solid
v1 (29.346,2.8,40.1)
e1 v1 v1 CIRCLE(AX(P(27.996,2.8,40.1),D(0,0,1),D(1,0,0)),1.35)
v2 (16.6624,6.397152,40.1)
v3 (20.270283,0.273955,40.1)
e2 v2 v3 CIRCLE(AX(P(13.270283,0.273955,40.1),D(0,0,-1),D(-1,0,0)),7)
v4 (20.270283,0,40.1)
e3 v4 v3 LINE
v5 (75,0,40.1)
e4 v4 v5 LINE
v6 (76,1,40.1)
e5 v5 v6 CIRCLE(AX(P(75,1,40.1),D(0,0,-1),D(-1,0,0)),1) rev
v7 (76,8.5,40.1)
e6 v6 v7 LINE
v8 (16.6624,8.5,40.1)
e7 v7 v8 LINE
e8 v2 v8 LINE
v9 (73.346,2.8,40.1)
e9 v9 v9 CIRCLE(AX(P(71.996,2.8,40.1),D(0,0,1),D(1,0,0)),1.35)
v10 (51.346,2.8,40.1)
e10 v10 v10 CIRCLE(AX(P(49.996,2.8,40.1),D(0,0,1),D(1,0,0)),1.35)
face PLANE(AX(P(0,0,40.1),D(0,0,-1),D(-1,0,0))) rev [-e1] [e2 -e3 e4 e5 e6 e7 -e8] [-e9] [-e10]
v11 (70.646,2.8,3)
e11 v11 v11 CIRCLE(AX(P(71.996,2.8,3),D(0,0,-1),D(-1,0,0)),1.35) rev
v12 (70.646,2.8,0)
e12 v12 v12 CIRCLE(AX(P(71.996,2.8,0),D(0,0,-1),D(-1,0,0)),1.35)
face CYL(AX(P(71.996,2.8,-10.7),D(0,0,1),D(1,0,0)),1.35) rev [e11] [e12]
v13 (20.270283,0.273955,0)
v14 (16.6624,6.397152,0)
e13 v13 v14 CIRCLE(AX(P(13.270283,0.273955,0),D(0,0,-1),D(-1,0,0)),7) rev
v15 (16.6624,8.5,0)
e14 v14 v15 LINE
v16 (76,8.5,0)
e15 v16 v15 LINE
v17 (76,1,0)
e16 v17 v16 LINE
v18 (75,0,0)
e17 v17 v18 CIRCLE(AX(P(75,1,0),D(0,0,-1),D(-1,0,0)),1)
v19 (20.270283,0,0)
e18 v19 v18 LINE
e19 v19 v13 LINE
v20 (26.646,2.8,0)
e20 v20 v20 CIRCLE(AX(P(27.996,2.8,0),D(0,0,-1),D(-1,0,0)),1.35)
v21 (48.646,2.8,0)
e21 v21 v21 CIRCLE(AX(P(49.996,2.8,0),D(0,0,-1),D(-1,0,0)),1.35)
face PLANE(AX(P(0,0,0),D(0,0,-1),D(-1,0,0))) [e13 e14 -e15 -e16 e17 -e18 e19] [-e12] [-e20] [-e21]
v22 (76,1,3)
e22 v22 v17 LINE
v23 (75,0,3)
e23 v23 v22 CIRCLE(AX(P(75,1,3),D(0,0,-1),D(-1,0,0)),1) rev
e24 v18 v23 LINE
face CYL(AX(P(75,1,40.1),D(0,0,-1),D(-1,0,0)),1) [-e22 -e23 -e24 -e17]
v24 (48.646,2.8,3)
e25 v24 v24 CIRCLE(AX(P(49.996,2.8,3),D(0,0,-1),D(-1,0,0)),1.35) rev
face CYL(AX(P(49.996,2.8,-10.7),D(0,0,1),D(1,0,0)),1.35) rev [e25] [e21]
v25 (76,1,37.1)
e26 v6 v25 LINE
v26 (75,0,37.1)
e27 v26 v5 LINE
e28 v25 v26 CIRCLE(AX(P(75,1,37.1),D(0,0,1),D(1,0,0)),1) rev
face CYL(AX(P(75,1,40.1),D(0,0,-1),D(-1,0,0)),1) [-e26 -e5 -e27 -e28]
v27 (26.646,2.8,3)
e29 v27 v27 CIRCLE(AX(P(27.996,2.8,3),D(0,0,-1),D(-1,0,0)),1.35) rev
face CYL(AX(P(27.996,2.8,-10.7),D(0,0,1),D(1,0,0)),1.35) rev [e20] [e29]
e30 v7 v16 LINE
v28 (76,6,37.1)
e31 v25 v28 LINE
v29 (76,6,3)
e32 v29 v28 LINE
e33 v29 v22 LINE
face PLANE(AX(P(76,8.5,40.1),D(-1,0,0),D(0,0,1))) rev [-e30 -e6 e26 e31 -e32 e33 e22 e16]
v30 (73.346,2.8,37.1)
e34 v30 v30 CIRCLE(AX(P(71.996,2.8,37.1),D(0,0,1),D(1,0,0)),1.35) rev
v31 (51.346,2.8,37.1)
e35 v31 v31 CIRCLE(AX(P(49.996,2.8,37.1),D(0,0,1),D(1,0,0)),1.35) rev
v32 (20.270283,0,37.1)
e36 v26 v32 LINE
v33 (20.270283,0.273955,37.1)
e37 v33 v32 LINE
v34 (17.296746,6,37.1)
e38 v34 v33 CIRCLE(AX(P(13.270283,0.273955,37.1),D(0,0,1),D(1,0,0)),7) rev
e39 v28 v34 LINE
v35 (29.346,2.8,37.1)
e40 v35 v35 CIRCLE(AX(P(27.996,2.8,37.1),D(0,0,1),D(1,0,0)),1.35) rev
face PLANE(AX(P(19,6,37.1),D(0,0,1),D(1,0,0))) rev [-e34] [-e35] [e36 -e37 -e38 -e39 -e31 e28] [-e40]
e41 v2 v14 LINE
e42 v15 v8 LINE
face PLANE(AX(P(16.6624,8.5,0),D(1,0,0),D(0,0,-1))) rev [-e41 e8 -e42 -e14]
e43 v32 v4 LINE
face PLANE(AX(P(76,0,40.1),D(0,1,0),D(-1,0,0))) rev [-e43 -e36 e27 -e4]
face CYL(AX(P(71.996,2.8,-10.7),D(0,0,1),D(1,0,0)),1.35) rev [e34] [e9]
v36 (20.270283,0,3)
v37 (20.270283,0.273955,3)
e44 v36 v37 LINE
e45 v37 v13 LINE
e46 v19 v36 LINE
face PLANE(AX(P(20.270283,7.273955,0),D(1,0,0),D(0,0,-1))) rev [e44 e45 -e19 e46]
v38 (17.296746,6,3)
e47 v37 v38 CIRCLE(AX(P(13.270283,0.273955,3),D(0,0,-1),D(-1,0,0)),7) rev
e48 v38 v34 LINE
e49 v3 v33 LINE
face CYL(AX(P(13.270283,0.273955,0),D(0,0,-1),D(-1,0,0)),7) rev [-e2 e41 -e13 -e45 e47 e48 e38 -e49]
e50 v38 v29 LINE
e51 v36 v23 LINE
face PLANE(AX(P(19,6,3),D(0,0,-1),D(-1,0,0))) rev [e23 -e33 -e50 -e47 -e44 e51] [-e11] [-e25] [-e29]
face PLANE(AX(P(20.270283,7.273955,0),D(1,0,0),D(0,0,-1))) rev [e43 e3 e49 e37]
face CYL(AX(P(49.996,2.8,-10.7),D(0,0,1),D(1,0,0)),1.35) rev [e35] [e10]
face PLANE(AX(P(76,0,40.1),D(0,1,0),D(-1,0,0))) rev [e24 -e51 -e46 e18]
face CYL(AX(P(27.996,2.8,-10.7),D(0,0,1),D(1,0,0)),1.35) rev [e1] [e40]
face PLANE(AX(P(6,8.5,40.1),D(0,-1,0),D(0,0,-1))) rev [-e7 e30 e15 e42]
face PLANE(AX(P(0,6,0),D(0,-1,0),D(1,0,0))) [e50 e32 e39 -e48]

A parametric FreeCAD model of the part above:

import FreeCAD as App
import Part
import Sketcher

V = App.Vector
Q = App.Units.Quantity


def edges_at(feature, points):
    """Names of the edges that pass closest to the given points."""
    edges = feature.Shape.Edges
    near = lambda p: min(range(len(edges)), key=lambda i: edges[i].distToShape(Part.Vertex(*p))[0])
    return sorted({f"Edge{near(p) + 1}" for p in points})

doc = App.newDocument("Part")
params = doc.addObject("Spreadsheet::Sheet", "Params")
for row, (alias, value) in enumerate([
    ("sketch1_width", "76 mm"),
    ("sketch1_width2", "70 mm"),
    ("sketch1_height", "8.5 mm"),
    ("pad1_length", "40.1 mm"),
    ("sketch2_diameter", "2.7 mm"),
    ("pocket1_length", "50.8 mm"),
    ("pocket2_length", "50.8 mm"),
    ("sketch4_height", "34.1 mm"),
    ("pocket3_length", "6 mm"),
    ("sketch5_width", "20 mm"),
    ("sketch5_height", "25 mm"),
    ("pad2_length", "2 mm"),
    ("fillet_radius", "1 mm"),
    ("sketch7_height", "8.5 mm"),
    ("pad3_length", "40 mm"),
    ("fillet2_radius", "7 mm"),
    ("sketch10_height", "10 mm"),
    ("sketch11_width", "6 mm"),
    ("sketch11_height", "34.1 mm"),
], start=1):
    params.set(f"A{row}", alias)
    params.set(f"B{row}", "=" + value)
    params.setAlias(f"B{row}", alias)

body = doc.addObject("PartDesign::Body", "Body")

sketch1 = doc.addObject("Sketcher::SketchObject", "Sketch")
body.addObject(sketch1)
sketch1.AttachmentSupport = (doc.XY_Plane, [""])
sketch1.MapMode = "FlatFace"
sketch1.addGeometry([
    Part.LineSegment(V(0, 52.578, 0), V(0, 0, 0)),
    Part.LineSegment(V(0, 0, 0), V(76, 0, 0)),
    Part.LineSegment(V(76, 0, 0), V(76, 8.5, 0)),
    Part.LineSegment(V(76, 8.5, 0), V(6, 8.5, 0)),
    Part.LineSegment(V(6, 8.5, 0), V(6, 52.578, 0)),
    Part.LineSegment(V(6, 52.578, 0), V(0, 52.578, 0)),
], False)
sketch1.addConstraint([
    Sketcher.Constraint("Coincident", 0, 2, 1, 1),
    Sketcher.Constraint("Coincident", 1, 2, 2, 1),
    Sketcher.Constraint("Coincident", 2, 2, 3, 1),
    Sketcher.Constraint("Coincident", 3, 2, 4, 1),
    Sketcher.Constraint("Coincident", 4, 2, 5, 1),
    Sketcher.Constraint("Coincident", 5, 2, 0, 1),
    Sketcher.Constraint("Vertical", 0),
    Sketcher.Constraint("Horizontal", 1),
    Sketcher.Constraint("Vertical", 2),
    Sketcher.Constraint("Horizontal", 3),
    Sketcher.Constraint("Vertical", 4),
    Sketcher.Constraint("Horizontal", 5),
    Sketcher.Constraint("Coincident", 0, 2, -1, 1),
    Sketcher.Constraint("DistanceX", 1, 1, 1, 2, Q("76 mm")),
    Sketcher.Constraint("DistanceX", 3, 2, 3, 1, Q("70 mm")),
    Sketcher.Constraint("DistanceY", 2, 1, 2, 2, Q("8.5 mm")),
    Sketcher.Constraint("DistanceY", 0, 2, 0, 1, Q("52.578 mm")),
])
sketch1.setExpression("Constraints[13]", "Params.sketch1_width")
sketch1.setExpression("Constraints[14]", "Params.sketch1_width2")
sketch1.setExpression("Constraints[15]", "Params.sketch1_height")
pad1 = doc.addObject("PartDesign::Pad", "Pad")
body.addObject(pad1)
pad1.Profile = sketch1
pad1.setExpression("Length", "Params.pad1_length")

sketch2 = doc.addObject("Sketcher::SketchObject", "Sketch001")
body.addObject(sketch2)
sketch2.AttachmentSupport = (doc.XY_Plane, [""])
sketch2.MapMode = "FlatFace"
sketch2.AttachmentOffset = App.Placement(V(0, 0, 40.1), App.Rotation())
sketch2.addGeometry([
    Part.Circle(V(27.996, 2.8, 0), V(0, 0, 1), 1.35),
    Part.Circle(V(49.996, 2.8, 0), V(0, 0, 1), 1.35),
    Part.Circle(V(71.996, 2.8, 0), V(0, 0, 1), 1.35),
], False)
sketch2.addConstraint([
    Sketcher.Constraint("Equal", 0, 1),
    Sketcher.Constraint("Equal", 1, 2),
    Sketcher.Constraint("Horizontal", 0, 3, 1, 3),
    Sketcher.Constraint("Horizontal", 1, 3, 2, 3),
    Sketcher.Constraint("Diameter", 0, Q("2.7 mm")),
    Sketcher.Constraint("DistanceX", 0, 3, 1, 3, Q("22 mm")),
    Sketcher.Constraint("DistanceX", 1, 3, 2, 3, Q("22 mm")),
    Sketcher.Constraint("DistanceY", -1, 1, 0, 3, Q("2.8 mm")),
    Sketcher.Constraint("DistanceX", -1, 1, 0, 3, Q("27.996 mm")),
])
sketch2.setExpression("Constraints[4]", "Params.sketch2_diameter")
pocket1 = doc.addObject("PartDesign::Pocket", "Pocket")
body.addObject(pocket1)
pocket1.Profile = sketch2
pocket1.setExpression("Length", "Params.pocket1_length")

sketch3 = doc.addObject("Sketcher::SketchObject", "Sketch002")
body.addObject(sketch3)
sketch3.AttachmentSupport = (doc.YZ_Plane, [""])
sketch3.MapMode = "FlatFace"
sketch3.addGeometry([
    Part.Circle(V(17.6, 27.88, 0), V(0, 0, 1), 1.016),
    Part.Circle(V(17.6, 11.88, 0), V(0, 0, 1), 1.016),
    Part.Circle(V(49.6, 27.88, 0), V(0, 0, 1), 1.016),
    Part.Circle(V(49.6, 11.88, 0), V(0, 0, 1), 1.016),
], False)
sketch3.addConstraint([
    Sketcher.Constraint("Equal", 0, 1),
    Sketcher.Constraint("Equal", 1, 2),
    Sketcher.Constraint("Equal", 2, 3),
    Sketcher.Constraint("Horizontal", 0, 3, 2, 3),
    Sketcher.Constraint("Horizontal", 1, 3, 3, 3),
    Sketcher.Constraint("Vertical", 0, 3, 1, 3),
    Sketcher.Constraint("Vertical", 2, 3, 3, 3),
    Sketcher.Constraint("Diameter", 0, Q("2.032 mm")),
    Sketcher.Constraint("DistanceY", 1, 3, 0, 3, Q("16 mm")),
    Sketcher.Constraint("DistanceX", 0, 3, 2, 3, Q("32 mm")),
    Sketcher.Constraint("DistanceX", -1, 1, 0, 3, Q("17.6 mm")),
    Sketcher.Constraint("DistanceY", -1, 1, 0, 3, Q("27.88 mm")),
])
pocket2 = doc.addObject("PartDesign::Pocket", "Pocket001")
body.addObject(pocket2)
pocket2.Profile = sketch3
pocket2.setExpression("Length", "Params.pocket2_length")
pocket2.Reversed = True

sketch4 = doc.addObject("Sketcher::SketchObject", "Sketch003")
body.addObject(sketch4)
sketch4.AttachmentSupport = (doc.XZ_Plane, [""])
sketch4.MapMode = "FlatFace"
sketch4.addGeometry([
    Part.LineSegment(V(19, 37.1, 0), V(19, 3, 0)),
    Part.LineSegment(V(19, 3, 0), V(81.086074, 3, 0)),
    Part.LineSegment(V(81.086074, 3, 0), V(81.086074, 37.1, 0)),
    Part.LineSegment(V(81.086074, 37.1, 0), V(19, 37.1, 0)),
], False)
sketch4.addConstraint([
    Sketcher.Constraint("Coincident", 0, 2, 1, 1),
    Sketcher.Constraint("Coincident", 1, 2, 2, 1),
    Sketcher.Constraint("Coincident", 2, 2, 3, 1),
    Sketcher.Constraint("Coincident", 3, 2, 0, 1),
    Sketcher.Constraint("Vertical", 0),
    Sketcher.Constraint("Horizontal", 1),
    Sketcher.Constraint("Vertical", 2),
    Sketcher.Constraint("Horizontal", 3),
    Sketcher.Constraint("DistanceY", 0, 2, 0, 1, Q("34.1 mm")),
    Sketcher.Constraint("DistanceX", -1, 1, 0, 2, Q("19 mm")),
    Sketcher.Constraint("DistanceY", -1, 1, 0, 2, Q("3 mm")),
    Sketcher.Constraint("DistanceX", 1, 1, 1, 2, Q("62.086074 mm")),
])
sketch4.setExpression("Constraints[8]", "Params.sketch4_height")
pocket3 = doc.addObject("PartDesign::Pocket", "Pocket002")
body.addObject(pocket3)
pocket3.Profile = sketch4
pocket3.setExpression("Length", "Params.pocket3_length")

sketch5 = doc.addObject("Sketcher::SketchObject", "Sketch004")
body.addObject(sketch5)
sketch5.AttachmentSupport = (doc.XY_Plane, [""])
sketch5.MapMode = "FlatFace"
sketch5.AttachmentOffset = App.Placement(V(0, 0, 40.1), App.Rotation())
sketch5.addGeometry([
    Part.LineSegment(V(6, 8.5, 0), V(26, 8.5, 0)),
    Part.LineSegment(V(26, 8.5, 0), V(6, 33.5, 0)),
    Part.LineSegment(V(6, 33.5, 0), V(6, 8.5, 0)),
], False)
sketch5.addConstraint([
    Sketcher.Constraint("Coincident", 0, 2, 1, 1),
    Sketcher.Constraint("Coincident", 1, 2, 2, 1),
    Sketcher.Constraint("Coincident", 2, 2, 0, 1),
    Sketcher.Constraint("Horizontal", 0),
    Sketcher.Constraint("Vertical", 2),
    Sketcher.Constraint("DistanceX", 0, 1, 0, 2, Q("20 mm")),
    Sketcher.Constraint("DistanceY", 2, 2, 2, 1, Q("25 mm")),
    Sketcher.Constraint("DistanceX", -1, 1, 0, 2, Q("26 mm")),
    Sketcher.Constraint("DistanceY", -1, 1, 0, 2, Q("8.5 mm")),
])
sketch5.setExpression("Constraints[5]", "Params.sketch5_width")
sketch5.setExpression("Constraints[6]", "Params.sketch5_height")
pad2 = doc.addObject("PartDesign::Pad", "Pad001")
body.addObject(pad2)
pad2.Profile = sketch5
pad2.setExpression("Length", "Params.pad2_length")
pad2.Reversed = True
doc.recompute()

datumplane = doc.addObject("PartDesign::Plane", "DatumPlane")
body.addObject(datumplane)
datumplane.AttachmentSupport = (doc.XY_Plane, [""])
datumplane.MapMode = "FlatFace"
datumplane.AttachmentOffset = App.Placement(V(0, 0, 20.05), App.Rotation())
mirrored = doc.addObject("PartDesign::Mirrored", "Mirrored")
body.addObject(mirrored)
mirrored.Originals = [pad2]
mirrored.MirrorPlane = (datumplane, [""])
body.Tip = mirrored
doc.recompute()

fillet = doc.addObject("PartDesign::Fillet", "Fillet")
body.addObject(fillet)
fillet.Base = (mirrored, edges_at(mirrored, [
    (0, 0, 20.05),
    (76, 0, 38.6),
    (3, 52.578, 40.1),
    (76, 0, 1.5),
    (3, 52.578, 0),
]))
fillet.setExpression("Radius", "Params.fillet_radius")

sketch6 = doc.addObject("Sketcher::SketchObject", "Sketch005")
body.addObject(sketch6)
sketch6.AttachmentSupport = (doc.XY_Plane, [""])
sketch6.MapMode = "FlatFace"
sketch6.AttachmentOffset = App.Placement(V(0, 0, 40.1), App.Rotation())
sketch6.addGeometry([
    Part.LineSegment(V(0, 70.892445, 0), V(0, 8.5, 0)),
    Part.LineSegment(V(0, 8.5, 0), V(87.972052, 8.5, 0)),
    Part.LineSegment(V(87.972052, 8.5, 0), V(87.972052, 70.892445, 0)),
    Part.LineSegment(V(87.972052, 70.892445, 0), V(0, 70.892445, 0)),
], False)
sketch6.addConstraint([
    Sketcher.Constraint("Coincident", 0, 2, 1, 1),
    Sketcher.Constraint("Coincident", 1, 2, 2, 1),
    Sketcher.Constraint("Coincident", 2, 2, 3, 1),
    Sketcher.Constraint("Coincident", 3, 2, 0, 1),
    Sketcher.Constraint("Vertical", 0),
    Sketcher.Constraint("Horizontal", 1),
    Sketcher.Constraint("Vertical", 2),
    Sketcher.Constraint("Horizontal", 3),
    Sketcher.Constraint("PointOnObject", 0, 2, -2),
    Sketcher.Constraint("DistanceY", -1, 1, 0, 2, Q("8.5 mm")),
    Sketcher.Constraint("DistanceX", 1, 1, 1, 2, Q("87.972052 mm")),
    Sketcher.Constraint("DistanceY", 0, 2, 0, 1, Q("62.392445 mm")),
])
pocket4 = doc.addObject("PartDesign::Pocket", "Pocket003")
body.addObject(pocket4)
pocket4.Profile = sketch6
pocket4.Type = "ThroughAll"

sketch7 = doc.addObject("Sketcher::SketchObject", "Sketch006")
body.addObject(sketch7)
sketch7.AttachmentSupport = (doc.XY_Plane, [""])
sketch7.MapMode = "FlatFace"
sketch7.AttachmentOffset = App.Placement(V(0, 0, 40.1), App.Rotation())
sketch7.addGeometry([
    Part.LineSegment(V(0, 8.5, 0), V(0, 0, 0)),
    Part.LineSegment(V(0, 0, 0), V(11.938, 0, 0)),
    Part.LineSegment(V(11.938, 0, 0), V(11.938, 8.5, 0)),
    Part.LineSegment(V(11.938, 8.5, 0), V(0, 8.5, 0)),
], False)
sketch7.addConstraint([
    Sketcher.Constraint("Coincident", 0, 2, 1, 1),
    Sketcher.Constraint("Coincident", 1, 2, 2, 1),
    Sketcher.Constraint("Coincident", 2, 2, 3, 1),
    Sketcher.Constraint("Coincident", 3, 2, 0, 1),
    Sketcher.Constraint("Vertical", 0),
    Sketcher.Constraint("Horizontal", 1),
    Sketcher.Constraint("Vertical", 2),
    Sketcher.Constraint("Horizontal", 3),
    Sketcher.Constraint("Coincident", 0, 2, -1, 1),
    Sketcher.Constraint("DistanceY", 0, 2, 0, 1, Q("8.5 mm")),
    Sketcher.Constraint("DistanceX", 1, 1, 1, 2, Q("11.938 mm")),
])
sketch7.setExpression("Constraints[9]", "Params.sketch7_height")
pocket5 = doc.addObject("PartDesign::Pocket", "Pocket004")
body.addObject(pocket5)
pocket5.Profile = sketch7
pocket5.Type = "ThroughAll"

sketch8 = doc.addObject("Sketcher::SketchObject", "Sketch007")
body.addObject(sketch8)
sketch8.AttachmentSupport = (doc.XY_Plane, [""])
sketch8.MapMode = "FlatFace"
sketch8.AttachmentOffset = App.Placement(V(0, 0, 40.1), App.Rotation())
sketch8.addGeometry([
    Part.LineSegment(V(11.938, 7.100489, 0), V(11.938, 0, 0)),
    Part.LineSegment(V(11.938, 0, 0), V(21.491882, 0, 0)),
    Part.LineSegment(V(21.491882, 0, 0), V(21.491882, 7.100489, 0)),
    Part.LineSegment(V(21.491882, 7.100489, 0), V(11.938, 7.100489, 0)),
], False)
sketch8.addConstraint([
    Sketcher.Constraint("Coincident", 0, 2, 1, 1),
    Sketcher.Constraint("Coincident", 1, 2, 2, 1),
    Sketcher.Constraint("Coincident", 2, 2, 3, 1),
    Sketcher.Constraint("Coincident", 3, 2, 0, 1),
    Sketcher.Constraint("Vertical", 0),
    Sketcher.Constraint("Horizontal", 1),
    Sketcher.Constraint("Vertical", 2),
    Sketcher.Constraint("Horizontal", 3),
    Sketcher.Constraint("PointOnObject", 0, 2, -1),
    Sketcher.Constraint("DistanceX", -1, 1, 0, 2, Q("11.938 mm")),
    Sketcher.Constraint("DistanceY", 0, 2, 0, 1, Q("7.100489 mm")),
    Sketcher.Constraint("DistanceX", 1, 1, 1, 2, Q("9.553882 mm")),
])
pad3 = doc.addObject("PartDesign::Pad", "Pad002")
body.addObject(pad3)
pad3.Profile = sketch8
pad3.setExpression("Length", "Params.pad3_length")
pad3.Reversed = True

sketch9 = doc.addObject("Sketcher::SketchObject", "Sketch008")
body.addObject(sketch9)
sketch9.AttachmentSupport = (doc.XY_Plane, [""])
sketch9.MapMode = "FlatFace"
sketch9.AttachmentOffset = App.Placement(V(0, 0, 40.1), App.Rotation())
sketch9.addGeometry([
    Part.LineSegment(V(11.938, 7.273955, 0), V(11.938, 0, 0)),
    Part.LineSegment(V(11.938, 0, 0), V(20.270283, 0, 0)),
    Part.LineSegment(V(20.270283, 0, 0), V(20.270283, 7.273955, 0)),
    Part.LineSegment(V(20.270283, 7.273955, 0), V(11.938, 7.273955, 0)),
], False)
sketch9.addConstraint([
    Sketcher.Constraint("Coincident", 0, 2, 1, 1),
    Sketcher.Constraint("Coincident", 1, 2, 2, 1),
    Sketcher.Constraint("Coincident", 2, 2, 3, 1),
    Sketcher.Constraint("Coincident", 3, 2, 0, 1),
    Sketcher.Constraint("Vertical", 0),
    Sketcher.Constraint("Horizontal", 1),
    Sketcher.Constraint("Vertical", 2),
    Sketcher.Constraint("Horizontal", 3),
    Sketcher.Constraint("PointOnObject", 0, 2, -1),
    Sketcher.Constraint("DistanceX", -1, 1, 0, 2, Q("11.938 mm")),
    Sketcher.Constraint("DistanceX", 1, 1, 1, 2, Q("8.332283 mm")),
    Sketcher.Constraint("DistanceY", 0, 2, 0, 1, Q("7.273955 mm")),
])
pocket6 = doc.addObject("PartDesign::Pocket", "Pocket005")
body.addObject(pocket6)
pocket6.Profile = sketch9
pocket6.Type = "ThroughAll"
doc.recompute()

fillet2 = doc.addObject("PartDesign::Fillet", "Fillet001")
body.addObject(fillet2)
fillet2.Base = (pocket6, edges_at(pocket6, [(20.27, 7.274, 20.05)]))
fillet2.setExpression("Radius", "Params.fillet2_radius")

sketch10 = doc.addObject("Sketcher::SketchObject", "Sketch009")
body.addObject(sketch10)
sketch10.AttachmentSupport = (doc.XY_Plane, [""])
sketch10.MapMode = "FlatFace"
sketch10.AttachmentOffset = App.Placement(V(0, 0, 40.1), App.Rotation())
sketch10.addGeometry([
    Part.LineSegment(V(11.938, 8.5, 0), V(11.938, -1.5, 0)),
    Part.LineSegment(V(11.938, -1.5, 0), V(16.6624, -1.5, 0)),
    Part.LineSegment(V(16.6624, -1.5, 0), V(16.6624, 8.5, 0)),
    Part.LineSegment(V(16.6624, 8.5, 0), V(11.938, 8.5, 0)),
], False)
sketch10.addConstraint([
    Sketcher.Constraint("Coincident", 0, 2, 1, 1),
    Sketcher.Constraint("Coincident", 1, 2, 2, 1),
    Sketcher.Constraint("Coincident", 2, 2, 3, 1),
    Sketcher.Constraint("Coincident", 3, 2, 0, 1),
    Sketcher.Constraint("Vertical", 0),
    Sketcher.Constraint("Horizontal", 1),
    Sketcher.Constraint("Vertical", 2),
    Sketcher.Constraint("Horizontal", 3),
    Sketcher.Constraint("DistanceY", 0, 2, 0, 1, Q("10 mm")),
    Sketcher.Constraint("DistanceY", 0, 2, -1, 1, Q("1.5 mm")),
    Sketcher.Constraint("DistanceX", 1, 1, 1, 2, Q("4.7244 mm")),
    Sketcher.Constraint("DistanceX", -1, 1, 0, 2, Q("11.938 mm")),
])
sketch10.setExpression("Constraints[8]", "Params.sketch10_height")
pocket7 = doc.addObject("PartDesign::Pocket", "Pocket006")
body.addObject(pocket7)
pocket7.Profile = sketch10
pocket7.Type = "ThroughAll"

sketch11 = doc.addObject("Sketcher::SketchObject", "Sketch010")
body.addObject(sketch11)
sketch11.AttachmentSupport = (doc.YZ_Plane, [""])
sketch11.MapMode = "FlatFace"
sketch11.AttachmentOffset = App.Placement(V(0, 0, 21.491882), App.Rotation())
sketch11.addGeometry([
    Part.LineSegment(V(6, 37.1, 0), V(0, 37.1, 0)),
    Part.LineSegment(V(0, 37.1, 0), V(0, 3, 0)),
    Part.LineSegment(V(0, 3, 0), V(6, 3, 0)),
    Part.LineSegment(V(6, 3, 0), V(6, 37.1, 0)),
], False)
sketch11.addConstraint([
    Sketcher.Constraint("Coincident", 0, 2, 1, 1),
    Sketcher.Constraint("Coincident", 1, 2, 2, 1),
    Sketcher.Constraint("Coincident", 2, 2, 3, 1),
    Sketcher.Constraint("Coincident", 3, 2, 0, 1),
    Sketcher.Constraint("Horizontal", 0),
    Sketcher.Constraint("Vertical", 1),
    Sketcher.Constraint("Horizontal", 2),
    Sketcher.Constraint("Vertical", 3),
    Sketcher.Constraint("PointOnObject", 0, 2, -2),
    Sketcher.Constraint("DistanceX", 0, 2, 0, 1, Q("6 mm")),
    Sketcher.Constraint("DistanceY", 1, 2, 1, 1, Q("34.1 mm")),
    Sketcher.Constraint("DistanceY", -1, 1, 1, 2, Q("3 mm")),
])
sketch11.setExpression("Constraints[9]", "Params.sketch11_width")
sketch11.setExpression("Constraints[10]", "Params.sketch11_height")
pocket8 = doc.addObject("PartDesign::Pocket", "Pocket007")
body.addObject(pocket8)
pocket8.Profile = sketch11
pocket8.Type = "ThroughAll"

doc.recompute()
